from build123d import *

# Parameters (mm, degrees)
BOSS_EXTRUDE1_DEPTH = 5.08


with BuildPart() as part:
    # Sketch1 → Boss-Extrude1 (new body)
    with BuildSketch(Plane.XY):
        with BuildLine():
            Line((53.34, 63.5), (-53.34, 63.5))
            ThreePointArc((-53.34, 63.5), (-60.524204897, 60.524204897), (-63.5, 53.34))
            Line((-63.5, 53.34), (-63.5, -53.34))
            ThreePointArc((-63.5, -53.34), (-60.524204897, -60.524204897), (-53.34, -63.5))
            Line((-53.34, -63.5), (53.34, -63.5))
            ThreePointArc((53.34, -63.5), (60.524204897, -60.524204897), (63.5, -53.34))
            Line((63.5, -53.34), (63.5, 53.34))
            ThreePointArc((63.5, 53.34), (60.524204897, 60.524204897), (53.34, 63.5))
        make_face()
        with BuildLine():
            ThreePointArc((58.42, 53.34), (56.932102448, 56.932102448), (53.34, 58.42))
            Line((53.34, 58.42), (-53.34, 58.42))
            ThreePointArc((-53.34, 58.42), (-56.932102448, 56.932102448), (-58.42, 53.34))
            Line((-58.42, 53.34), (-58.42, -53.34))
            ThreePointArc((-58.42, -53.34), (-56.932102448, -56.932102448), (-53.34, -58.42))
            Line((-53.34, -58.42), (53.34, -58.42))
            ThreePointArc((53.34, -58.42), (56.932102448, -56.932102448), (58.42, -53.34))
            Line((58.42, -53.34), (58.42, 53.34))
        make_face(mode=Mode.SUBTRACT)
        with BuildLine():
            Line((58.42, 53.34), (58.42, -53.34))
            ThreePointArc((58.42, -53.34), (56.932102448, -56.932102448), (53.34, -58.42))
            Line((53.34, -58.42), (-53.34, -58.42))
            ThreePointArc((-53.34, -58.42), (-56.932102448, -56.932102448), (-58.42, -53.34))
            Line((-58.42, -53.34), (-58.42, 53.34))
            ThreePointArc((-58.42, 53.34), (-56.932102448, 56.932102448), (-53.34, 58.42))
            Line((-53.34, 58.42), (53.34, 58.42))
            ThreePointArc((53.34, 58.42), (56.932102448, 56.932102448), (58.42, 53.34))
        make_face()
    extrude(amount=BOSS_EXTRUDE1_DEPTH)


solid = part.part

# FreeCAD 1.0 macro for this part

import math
import FreeCAD as App
import Part
import Sketcher
Q = App.Units.Quantity

doc = App.newDocument("Part")
body = doc.addObject("PartDesign::Body", "Body")

# Sketch on XY plane
sketch1 = body.newObject("Sketcher::SketchObject", "Sketch")
sketch1.AttachmentSupport = (doc.getObject("XY_Plane"), [""])
sketch1.MapMode = "FlatFace"
sketch1.addGeometry([
    Part.LineSegment(App.Vector(53.34, 63.5, 0), App.Vector(-53.34, 63.5, 0)),  # 0
    Part.ArcOfCircle(Part.Circle(App.Vector(-53.34, 53.34, 0), App.Vector(0, 0, 1), 10.16), math.radians(90), math.radians(180)),  # 1
    Part.LineSegment(App.Vector(-63.5, 53.34, 0), App.Vector(-63.5, -53.34, 0)),  # 2
    Part.ArcOfCircle(Part.Circle(App.Vector(-53.34, -53.34, 0), App.Vector(0, 0, 1), 10.16), math.radians(180), math.radians(270)),  # 3
    Part.LineSegment(App.Vector(-53.34, -63.5, 0), App.Vector(53.34, -63.5, 0)),  # 4
    Part.ArcOfCircle(Part.Circle(App.Vector(53.34, -53.34, 0), App.Vector(0, 0, 1), 10.16), math.radians(-90), math.radians(0)),  # 5
    Part.LineSegment(App.Vector(63.5, -53.34, 0), App.Vector(63.5, 53.34, 0)),  # 6
    Part.ArcOfCircle(Part.Circle(App.Vector(53.34, 53.34, 0), App.Vector(0, 0, 1), 10.16), math.radians(0), math.radians(90)),  # 7
], False)
sketch1.addConstraint([
    Sketcher.Constraint("Tangent", 0, 2, 1, 1),
    Sketcher.Constraint("Tangent", 1, 2, 2, 1),
    Sketcher.Constraint("Tangent", 2, 2, 3, 1),
    Sketcher.Constraint("Tangent", 3, 2, 4, 1),
    Sketcher.Constraint("Tangent", 4, 2, 5, 1),
    Sketcher.Constraint("Tangent", 5, 2, 6, 1),
    Sketcher.Constraint("Tangent", 6, 2, 7, 1),
    Sketcher.Constraint("Tangent", 7, 2, 0, 1),
    Sketcher.Constraint("Horizontal", 0),
    Sketcher.Constraint("Vertical", 2),
    Sketcher.Constraint("Horizontal", 4),
    Sketcher.Constraint("Vertical", 6),
    Sketcher.Constraint("Equal", 1, 3),
    Sketcher.Constraint("Equal", 3, 5),
    Sketcher.Constraint("Equal", 5, 7),
    Sketcher.Constraint("Symmetric", 1, 3, 5, 3, -1, 1),
    Sketcher.Constraint("Equal", 4, 2),
    Sketcher.Constraint("Radius", 1, Q("0.4 in")),
    Sketcher.Constraint("DistanceX", 0, 2, 0, 1, Q("4.2 in")),
])
pad1 = body.newObject("PartDesign::Pad", "Pad")
pad1.Profile = sketch1
pad1.Length = Q("0.2 in")

doc.recompute()
